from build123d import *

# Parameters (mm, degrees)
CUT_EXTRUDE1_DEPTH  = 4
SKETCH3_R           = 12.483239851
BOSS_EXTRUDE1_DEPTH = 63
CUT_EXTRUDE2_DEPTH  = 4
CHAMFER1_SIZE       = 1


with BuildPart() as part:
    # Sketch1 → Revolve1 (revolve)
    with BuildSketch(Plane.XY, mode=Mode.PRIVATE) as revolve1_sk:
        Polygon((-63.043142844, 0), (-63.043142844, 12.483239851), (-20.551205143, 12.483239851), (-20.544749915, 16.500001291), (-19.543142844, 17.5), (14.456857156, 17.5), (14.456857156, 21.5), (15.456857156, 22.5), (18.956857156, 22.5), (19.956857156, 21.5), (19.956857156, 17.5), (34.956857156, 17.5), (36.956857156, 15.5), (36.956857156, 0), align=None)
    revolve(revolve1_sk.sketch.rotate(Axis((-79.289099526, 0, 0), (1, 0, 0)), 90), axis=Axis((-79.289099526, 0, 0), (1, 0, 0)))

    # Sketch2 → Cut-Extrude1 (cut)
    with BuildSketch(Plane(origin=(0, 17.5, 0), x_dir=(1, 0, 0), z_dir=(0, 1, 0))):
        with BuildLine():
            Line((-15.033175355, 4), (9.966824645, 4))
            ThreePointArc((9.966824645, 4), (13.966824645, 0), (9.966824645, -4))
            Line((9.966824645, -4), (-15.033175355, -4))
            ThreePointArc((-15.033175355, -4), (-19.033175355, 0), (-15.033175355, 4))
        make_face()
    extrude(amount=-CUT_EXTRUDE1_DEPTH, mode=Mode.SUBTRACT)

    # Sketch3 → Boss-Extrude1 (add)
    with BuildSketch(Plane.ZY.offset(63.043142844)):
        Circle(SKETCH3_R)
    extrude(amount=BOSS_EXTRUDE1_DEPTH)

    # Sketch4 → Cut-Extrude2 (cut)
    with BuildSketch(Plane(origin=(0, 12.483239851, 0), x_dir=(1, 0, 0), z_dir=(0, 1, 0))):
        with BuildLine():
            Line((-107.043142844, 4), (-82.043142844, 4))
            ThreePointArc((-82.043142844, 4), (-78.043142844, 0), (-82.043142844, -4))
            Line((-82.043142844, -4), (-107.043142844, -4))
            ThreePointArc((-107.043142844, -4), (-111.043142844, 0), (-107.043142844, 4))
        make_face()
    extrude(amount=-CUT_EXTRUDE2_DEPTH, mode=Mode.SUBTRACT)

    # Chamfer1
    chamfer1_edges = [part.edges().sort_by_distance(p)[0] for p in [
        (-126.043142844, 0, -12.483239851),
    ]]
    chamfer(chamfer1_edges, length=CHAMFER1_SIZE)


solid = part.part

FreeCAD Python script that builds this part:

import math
import FreeCAD as App
import Part
import Sketcher
Q = App.Units.Quantity


def edges_at(feature, points):
    """Names of the edges that pass closest to the given points."""
    edges = feature.Shape.Edges
    near = lambda p: min(range(len(edges)), key=lambda i: edges[i].distToShape(Part.Vertex(*p))[0])
    return sorted({f"Edge{near(p) + 1}" for p in points})

doc = App.newDocument("Part")
body = doc.addObject("PartDesign::Body", "Body")

# Sketch on XY plane
sketch1 = body.newObject("Sketcher::SketchObject", "Sketch")
sketch1.AttachmentSupport = (doc.getObject("XY_Plane"), [""])
sketch1.MapMode = "FlatFace"
sketch1.addGeometry(Part.LineSegment(App.Vector(-63, 12.5, 0), App.Vector(-63, 0, 0)), False)
sketch1.addGeometry(Part.LineSegment(App.Vector(-63, 0, 0), App.Vector(37, 0, 0)), False)
sketch1.addGeometry(Part.LineSegment(App.Vector(37, 0, 0), App.Vector(37, 15.5, 0)), False)
sketch1.addGeometry(Part.LineSegment(App.Vector(37, 15.5, 0), App.Vector(35, 17.5, 0)), False)
sketch1.addGeometry(Part.LineSegment(App.Vector(35, 17.5, 0), App.Vector(20, 17.5, 0)), False)
sketch1.addGeometry(Part.LineSegment(App.Vector(20, 17.5, 0), App.Vector(20, 21.5, 0)), False)
sketch1.addGeometry(Part.LineSegment(App.Vector(20, 21.5, 0), App.Vector(19, 22.5, 0)), False)
sketch1.addGeometry(Part.LineSegment(App.Vector(19, 22.5, 0), App.Vector(15.5, 22.5, 0)), False)
sketch1.addGeometry(Part.LineSegment(App.Vector(15.5, 22.5, 0), App.Vector(14.5, 21.5, 0)), False)
sketch1.addGeometry(Part.LineSegment(App.Vector(14.5, 21.5, 0), App.Vector(14.5, 17.5, 0)), False)
sketch1.addGeometry(Part.LineSegment(App.Vector(14.5, 17.5, 0), App.Vector(-19.5, 17.5, 0)), False)
sketch1.addGeometry(Part.LineSegment(App.Vector(-19.5, 17.5, 0), App.Vector(-20.5, 16.5, 0)), False)
sketch1.addGeometry(Part.LineSegment(App.Vector(-20.5, 16.5, 0), App.Vector(-20.6, 12.5, 0)), False)
sketch1.addGeometry(Part.LineSegment(App.Vector(-20.6, 12.5, 0), App.Vector(-63, 12.5, 0)), False)
sketch1.addConstraint(Sketcher.Constraint("Coincident", 0, 2, 1, 1))
sketch1.addConstraint(Sketcher.Constraint("Coincident", 1, 2, 2, 1))
sketch1.addConstraint(Sketcher.Constraint("Coincident", 2, 2, 3, 1))
sketch1.addConstraint(Sketcher.Constraint("Coincident", 3, 2, 4, 1))
sketch1.addConstraint(Sketcher.Constraint("Coincident", 4, 2, 5, 1))
sketch1.addConstraint(Sketcher.Constraint("Coincident", 5, 2, 6, 1))
sketch1.addConstraint(Sketcher.Constraint("Coincident", 6, 2, 7, 1))
sketch1.addConstraint(Sketcher.Constraint("Coincident", 7, 2, 8, 1))
sketch1.addConstraint(Sketcher.Constraint("Coincident", 8, 2, 9, 1))
sketch1.addConstraint(Sketcher.Constraint("Coincident", 9, 2, 10, 1))
sketch1.addConstraint(Sketcher.Constraint("Coincident", 10, 2, 11, 1))
sketch1.addConstraint(Sketcher.Constraint("Coincident", 11, 2, 12, 1))
sketch1.addConstraint(Sketcher.Constraint("Coincident", 12, 2, 13, 1))
sketch1.addConstraint(Sketcher.Constraint("Coincident", 13, 2, 0, 1))
sketch1.addConstraint(Sketcher.Constraint("Vertical", 0))
sketch1.addConstraint(Sketcher.Constraint("Horizontal", 1))
sketch1.addConstraint(Sketcher.Constraint("Vertical", 2))
sketch1.addConstraint(Sketcher.Constraint("Horizontal", 4))
sketch1.addConstraint(Sketcher.Constraint("Vertical", 5))
sketch1.addConstraint(Sketcher.Constraint("Horizontal", 7))
sketch1.addConstraint(Sketcher.Constraint("Vertical", 9))
sketch1.addConstraint(Sketcher.Constraint("Horizontal", 10))
sketch1.addConstraint(Sketcher.Constraint("Horizontal", 13))
sketch1.addConstraint(Sketcher.Constraint("PointOnObject", 0, 2, -1))
sketch1.addConstraint(Sketcher.Constraint("Parallel", 3, 6))
sketch1.addConstraint(Sketcher.Constraint("Perpendicular", 6, 8))
sketch1.addConstraint(Sketcher.Constraint("Horizontal", 5, 2, 8, 2))
sketch1.addConstraint(Sketcher.Constraint("Horizontal", 4, 2, 9, 2))
sketch1.addConstraint(Sketcher.Constraint("Equal", 6, 8))
sketch1.addConstraint(Sketcher.Constraint("DistanceX", 1, 1, 1, 2, Q("100 mm")))
sketch1.addConstraint(Sketcher.Constraint("DistanceX", 4, 2, 4, 1, Q("15 mm")))
sketch1.addConstraint(Sketcher.Constraint("DistanceX", 10, 2, 10, 1, Q("34 mm")))
sketch1.addConstraint(Sketcher.Constraint("DistanceY", 5, 1, 5, 2, Q("4 mm")))
sketch1.addConstraint(Sketcher.Constraint("DistanceX", 7, 2, 7, 1, Q("3.5 mm")))
sketch1.addConstraint(Sketcher.Constraint("DistanceY", 2, 1, 2, 2, Q("15.5 mm")))
sketch1.addConstraint(Sketcher.Constraint("DistanceX", 3, 2, 2, 2, Q("2 mm")))
sketch1.addConstraint(Sketcher.Constraint("DistanceX", 6, 2, 5, 2, Q("1 mm")))
sketch1.addConstraint(Sketcher.Constraint("DistanceY", 11, 2, 10, 2, Q("0.999999 mm")))
sketch1.addConstraint(Sketcher.Constraint("DistanceY", 0, 2, 0, 1, Q("12.48324 mm")))
sketch1.addConstraint(Sketcher.Constraint("Distance", 11, Q("1.415349 mm")))
sketch1.addConstraint(Sketcher.Constraint("DistanceX", 13, 2, 13, 1, Q("42.491938 mm")))
sketch1.addConstraint(Sketcher.Constraint("DistanceX", 11, 2, -1, 1, Q("20.54475 mm")))
revolution = body.newObject("PartDesign::Revolution", "Revolution")
revolution.Profile = sketch1
revolution.ReferenceAxis = (sketch1, ["H_Axis"])
revolution.Angle = 360

# Sketch on XZ plane
sketch2 = body.newObject("Sketcher::SketchObject", "Sketch001")
sketch2.AttachmentSupport = (doc.getObject("XZ_Plane"), [""])
sketch2.MapMode = "FlatFace"
sketch2.AttachmentOffset = App.Placement(App.Vector(0, 0, -17.5), App.Rotation())
sketch2.addGeometry(Part.LineSegment(App.Vector(10, -4, 0), App.Vector(-15, -4, 0)), False)
sketch2.addGeometry(Part.ArcOfCircle(Part.Circle(App.Vector(-15, 0, 0), App.Vector(0, 0, 1), 4), math.radians(90), math.radians(270)), False)
sketch2.addGeometry(Part.LineSegment(App.Vector(-15, 4, 0), App.Vector(10, 4, 0)), False)
sketch2.addGeometry(Part.ArcOfCircle(Part.Circle(App.Vector(10, 0, 0), App.Vector(0, 0, 1), 4), math.radians(-90), math.radians(90)), False)
sketch2.addConstraint(Sketcher.Constraint("Tangent", 0, 2, 1, 2))
sketch2.addConstraint(Sketcher.Constraint("Tangent", 1, 1, 2, 1))
sketch2.addConstraint(Sketcher.Constraint("Tangent", 2, 2, 3, 2))
sketch2.addConstraint(Sketcher.Constraint("Tangent", 3, 1, 0, 1))
sketch2.addConstraint(Sketcher.Constraint("Horizontal", 0))
sketch2.addConstraint(Sketcher.Constraint("Horizontal", 2))
sketch2.addConstraint(Sketcher.Constraint("PointOnObject", 1, 3, -1))
sketch2.addConstraint(Sketcher.Constraint("Radius", 1, Q("4 mm")))
sketch2.addConstraint(Sketcher.Constraint("DistanceX", 0, 2, 0, 1, Q("25 mm")))
sketch2.addConstraint(Sketcher.Constraint("DistanceX", 1, 3, -1, 1, Q("15.033175 mm")))
pocket1 = body.newObject("PartDesign::Pocket", "Pocket")
pocket1.Profile = sketch2
pocket1.Length = 4
pocket1.Reversed = True

# Sketch on YZ plane
sketch3 = body.newObject("Sketcher::SketchObject", "Sketch002")
sketch3.AttachmentSupport = (doc.getObject("YZ_Plane"), [""])
sketch3.MapMode = "FlatFace"
sketch3.AttachmentOffset = App.Placement(App.Vector(0, 0, -63.043143), App.Rotation())
sketch3.addGeometry(Part.Circle(App.Vector(0, 0, 0), App.Vector(0, 0, 1), 12), False)
sketch3.addConstraint(Sketcher.Constraint("Coincident", 0, 3, -1, 1))
sketch3.addConstraint(Sketcher.Constraint("Diameter", 0, Q("24.96648 mm")))
pad1 = body.newObject("PartDesign::Pad", "Pad")
pad1.Profile = sketch3
pad1.Length = 63
pad1.Reversed = True

# Sketch on XZ plane
sketch4 = body.newObject("Sketcher::SketchObject", "Sketch003")
sketch4.AttachmentSupport = (doc.getObject("XZ_Plane"), [""])
sketch4.MapMode = "FlatFace"
sketch4.AttachmentOffset = App.Placement(App.Vector(0, 0, -12.48324), App.Rotation())
sketch4.addGeometry(Part.LineSegment(App.Vector(-82, -4, 0), App.Vector(-107, -4, 0)), False)
sketch4.addGeometry(Part.ArcOfCircle(Part.Circle(App.Vector(-107, 0, 0), App.Vector(0, 0, 1), 4), math.radians(90), math.radians(270)), False)
sketch4.addGeometry(Part.LineSegment(App.Vector(-107, 4, 0), App.Vector(-82, 4, 0)), False)
sketch4.addGeometry(Part.ArcOfCircle(Part.Circle(App.Vector(-82, 0, 0), App.Vector(0, 0, 1), 4), math.radians(-90), math.radians(90)), False)
sketch4.addConstraint(Sketcher.Constraint("Tangent", 0, 2, 1, 2))
sketch4.addConstraint(Sketcher.Constraint("Tangent", 1, 1, 2, 1))
sketch4.addConstraint(Sketcher.Constraint("Tangent", 2, 2, 3, 2))
sketch4.addConstraint(Sketcher.Constraint("Tangent", 3, 1, 0, 1))
sketch4.addConstraint(Sketcher.Constraint("Horizontal", 0))
sketch4.addConstraint(Sketcher.Constraint("Horizontal", 2))
sketch4.addConstraint(Sketcher.Constraint("PointOnObject", 1, 3, -1))
sketch4.addConstraint(Sketcher.Constraint("Radius", 1, Q("4 mm")))
sketch4.addConstraint(Sketcher.Constraint("DistanceX", 0, 2, 0, 1, Q("25 mm")))
sketch4.addConstraint(Sketcher.Constraint("DistanceX", 1, 3, -1, 1, Q("107.043143 mm")))
pocket2 = body.newObject("PartDesign::Pocket", "Pocket001")
pocket2.Profile = sketch4
pocket2.Length = 4
pocket2.Reversed = True
doc.recompute()

chamfer = body.newObject("PartDesign::Chamfer", "Chamfer")
chamfer.Base = (pocket2, edges_at(pocket2, [(-126.043, 0, -12.483)]))
chamfer.Size = 1

doc.recompute()
